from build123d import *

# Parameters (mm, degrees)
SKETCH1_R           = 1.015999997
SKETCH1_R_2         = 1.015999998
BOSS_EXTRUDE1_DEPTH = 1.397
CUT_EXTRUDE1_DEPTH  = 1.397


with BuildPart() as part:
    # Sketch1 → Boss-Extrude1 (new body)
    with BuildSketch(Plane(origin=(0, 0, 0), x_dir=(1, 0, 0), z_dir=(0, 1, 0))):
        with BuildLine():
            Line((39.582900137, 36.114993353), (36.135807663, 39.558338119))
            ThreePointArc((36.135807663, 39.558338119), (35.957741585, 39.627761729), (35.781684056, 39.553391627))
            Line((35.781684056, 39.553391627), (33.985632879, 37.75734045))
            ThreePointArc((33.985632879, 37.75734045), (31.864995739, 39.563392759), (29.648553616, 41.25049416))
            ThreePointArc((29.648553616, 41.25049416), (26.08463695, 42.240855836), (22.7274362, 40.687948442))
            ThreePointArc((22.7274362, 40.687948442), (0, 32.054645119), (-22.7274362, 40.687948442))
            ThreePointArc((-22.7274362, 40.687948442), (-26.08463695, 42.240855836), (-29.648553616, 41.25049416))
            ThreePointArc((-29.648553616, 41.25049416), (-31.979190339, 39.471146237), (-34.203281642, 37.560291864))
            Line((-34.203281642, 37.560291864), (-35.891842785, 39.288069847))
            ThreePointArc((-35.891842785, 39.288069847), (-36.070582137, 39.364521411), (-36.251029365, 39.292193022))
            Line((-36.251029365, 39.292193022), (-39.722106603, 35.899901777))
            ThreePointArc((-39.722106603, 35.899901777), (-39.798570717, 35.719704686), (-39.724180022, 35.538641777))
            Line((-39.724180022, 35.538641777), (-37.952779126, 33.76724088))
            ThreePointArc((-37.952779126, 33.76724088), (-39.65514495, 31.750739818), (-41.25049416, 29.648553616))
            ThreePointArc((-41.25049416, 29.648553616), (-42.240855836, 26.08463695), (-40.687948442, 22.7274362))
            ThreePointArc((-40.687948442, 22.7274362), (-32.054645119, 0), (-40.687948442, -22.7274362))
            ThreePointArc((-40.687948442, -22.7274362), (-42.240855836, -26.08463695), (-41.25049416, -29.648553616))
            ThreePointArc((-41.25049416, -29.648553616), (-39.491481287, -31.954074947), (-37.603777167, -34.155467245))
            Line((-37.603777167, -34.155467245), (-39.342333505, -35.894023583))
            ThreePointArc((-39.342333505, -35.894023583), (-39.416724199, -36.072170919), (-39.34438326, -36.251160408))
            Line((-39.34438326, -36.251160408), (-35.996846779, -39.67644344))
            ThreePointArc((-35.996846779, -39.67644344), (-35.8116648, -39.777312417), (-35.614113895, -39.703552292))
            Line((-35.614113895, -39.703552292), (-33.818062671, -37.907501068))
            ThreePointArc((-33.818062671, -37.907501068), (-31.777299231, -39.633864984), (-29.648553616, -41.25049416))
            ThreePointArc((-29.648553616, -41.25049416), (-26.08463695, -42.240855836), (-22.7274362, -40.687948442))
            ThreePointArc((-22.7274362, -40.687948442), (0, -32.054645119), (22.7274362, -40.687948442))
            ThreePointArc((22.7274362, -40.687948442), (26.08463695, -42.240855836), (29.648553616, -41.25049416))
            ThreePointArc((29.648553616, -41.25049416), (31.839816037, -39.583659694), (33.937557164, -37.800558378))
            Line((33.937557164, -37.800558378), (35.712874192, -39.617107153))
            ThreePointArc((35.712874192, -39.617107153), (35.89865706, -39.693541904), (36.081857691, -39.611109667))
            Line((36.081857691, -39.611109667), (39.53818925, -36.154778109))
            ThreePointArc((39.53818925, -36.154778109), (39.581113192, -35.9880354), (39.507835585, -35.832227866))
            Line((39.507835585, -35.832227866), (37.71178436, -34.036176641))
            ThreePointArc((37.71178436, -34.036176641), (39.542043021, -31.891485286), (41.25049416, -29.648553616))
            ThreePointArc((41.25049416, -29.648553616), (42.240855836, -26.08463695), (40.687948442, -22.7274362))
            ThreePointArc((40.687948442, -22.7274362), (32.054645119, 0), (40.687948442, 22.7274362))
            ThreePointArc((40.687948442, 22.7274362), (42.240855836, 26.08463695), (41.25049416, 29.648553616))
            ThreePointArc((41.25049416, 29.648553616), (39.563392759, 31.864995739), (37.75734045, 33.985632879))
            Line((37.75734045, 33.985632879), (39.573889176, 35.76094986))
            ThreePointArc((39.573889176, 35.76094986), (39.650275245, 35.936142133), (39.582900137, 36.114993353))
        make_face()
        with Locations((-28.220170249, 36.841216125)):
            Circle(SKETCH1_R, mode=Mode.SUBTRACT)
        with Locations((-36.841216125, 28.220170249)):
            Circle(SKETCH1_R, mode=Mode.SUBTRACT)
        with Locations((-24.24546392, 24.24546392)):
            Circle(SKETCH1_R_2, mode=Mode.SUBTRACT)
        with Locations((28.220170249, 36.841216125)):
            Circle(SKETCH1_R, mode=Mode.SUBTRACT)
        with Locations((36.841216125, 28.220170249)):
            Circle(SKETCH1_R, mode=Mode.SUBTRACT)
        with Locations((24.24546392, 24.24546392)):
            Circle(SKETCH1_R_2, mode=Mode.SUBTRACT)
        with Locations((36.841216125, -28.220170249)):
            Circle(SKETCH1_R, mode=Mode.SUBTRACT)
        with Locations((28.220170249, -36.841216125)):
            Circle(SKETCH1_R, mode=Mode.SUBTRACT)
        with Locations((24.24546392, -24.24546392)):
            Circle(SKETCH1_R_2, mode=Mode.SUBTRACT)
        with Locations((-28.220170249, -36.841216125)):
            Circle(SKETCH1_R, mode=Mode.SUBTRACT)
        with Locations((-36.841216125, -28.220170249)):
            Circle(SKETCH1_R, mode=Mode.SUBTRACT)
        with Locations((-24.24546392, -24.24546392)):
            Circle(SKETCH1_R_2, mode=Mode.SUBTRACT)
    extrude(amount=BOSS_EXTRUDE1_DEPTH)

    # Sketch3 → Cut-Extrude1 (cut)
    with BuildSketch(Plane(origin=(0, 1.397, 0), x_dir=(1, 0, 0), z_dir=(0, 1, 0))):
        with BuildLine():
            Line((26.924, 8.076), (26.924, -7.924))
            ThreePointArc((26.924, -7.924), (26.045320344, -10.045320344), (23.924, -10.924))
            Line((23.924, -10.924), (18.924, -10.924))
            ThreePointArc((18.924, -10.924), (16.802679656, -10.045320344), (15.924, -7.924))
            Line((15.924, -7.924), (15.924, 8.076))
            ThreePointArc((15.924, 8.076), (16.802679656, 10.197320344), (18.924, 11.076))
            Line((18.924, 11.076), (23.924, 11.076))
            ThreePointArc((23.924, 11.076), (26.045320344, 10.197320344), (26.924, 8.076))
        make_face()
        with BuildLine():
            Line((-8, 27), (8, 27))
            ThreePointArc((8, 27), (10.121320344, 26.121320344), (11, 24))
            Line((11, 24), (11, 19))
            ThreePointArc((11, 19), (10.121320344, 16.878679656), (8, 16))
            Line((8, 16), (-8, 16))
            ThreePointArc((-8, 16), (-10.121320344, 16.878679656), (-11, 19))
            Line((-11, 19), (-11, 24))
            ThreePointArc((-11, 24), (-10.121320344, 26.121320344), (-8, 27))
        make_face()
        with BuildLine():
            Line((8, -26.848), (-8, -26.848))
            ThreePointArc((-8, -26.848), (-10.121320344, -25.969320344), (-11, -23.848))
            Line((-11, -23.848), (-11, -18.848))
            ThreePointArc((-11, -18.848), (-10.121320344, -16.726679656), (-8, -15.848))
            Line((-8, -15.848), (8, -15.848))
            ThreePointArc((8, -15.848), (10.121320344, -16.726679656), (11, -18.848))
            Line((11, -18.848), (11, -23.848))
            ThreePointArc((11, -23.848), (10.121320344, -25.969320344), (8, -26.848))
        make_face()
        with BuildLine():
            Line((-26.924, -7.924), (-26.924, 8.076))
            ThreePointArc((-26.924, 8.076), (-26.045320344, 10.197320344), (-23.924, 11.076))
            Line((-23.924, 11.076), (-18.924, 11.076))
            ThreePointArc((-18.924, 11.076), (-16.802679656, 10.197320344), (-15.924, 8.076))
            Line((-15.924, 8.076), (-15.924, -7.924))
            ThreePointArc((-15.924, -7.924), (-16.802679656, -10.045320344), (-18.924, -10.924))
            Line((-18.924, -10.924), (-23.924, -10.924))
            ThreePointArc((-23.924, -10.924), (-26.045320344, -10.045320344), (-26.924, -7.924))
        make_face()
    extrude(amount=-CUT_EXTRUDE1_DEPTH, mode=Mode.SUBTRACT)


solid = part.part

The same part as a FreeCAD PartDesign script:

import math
import FreeCAD as App
import Part
import Sketcher

V = App.Vector
Q = App.Units.Quantity

doc = App.newDocument("Part")
body = doc.addObject("PartDesign::Body", "Body")

# Sketch on XZ plane
sketch1 = body.newObject("Sketcher::SketchObject", "Sketch")
sketch1.AttachmentSupport = (doc.getObject("XZ_Plane"), [""])
sketch1.MapMode = "FlatFace"
sketch1.addGeometry(Part.LineSegment(V(39.58, -36.11, 0), V(36.14, -39.56, 0)), False)
sketch1.addGeometry(Part.ArcOfCircle(Part.Circle(V(35.96, -39.37, 0), V(0, 0, 1), 0.25), math.radians(-135), math.radians(-47)), False)
sketch1.addGeometry(Part.LineSegment(V(35.78, -39.55, 0), V(33.99, -37.76, 0)), False)
sketch1.addGeometry(Part.ArcOfCircle(Part.Circle(V(0, 0, 0), V(0, 0, 1), 50.8), math.radians(-54.29), math.radians(-48.01)), False)
sketch1.addGeometry(Part.ArcOfCircle(Part.Circle(V(26.52, -36.9, 0), V(0, 0, 1), 5.36), math.radians(-135), math.radians(-54)), False)
sketch1.addGeometry(Part.ArcOfCircle(Part.Circle(V(0, -66.29, 0), V(0, 0, 1), 34.23), math.radians(48), math.radians(132)), False)
sketch1.addGeometry(Part.ArcOfCircle(Part.Circle(V(-26.52, -36.9, 0), V(0, 0, 1), 5.36), math.radians(-126), math.radians(-45)), False)
sketch1.addGeometry(Part.ArcOfCircle(Part.Circle(V(0, 0, 0), V(0, 0, 1), 50.8), math.radians(-132.32), math.radians(-125.71)), False)
sketch1.addGeometry(Part.LineSegment(V(-34.2, -37.56, 0), V(-35.89, -39.29, 0)), False)
sketch1.addGeometry(Part.ArcOfCircle(Part.Circle(V(-36.07, -39.11, 0), V(0, 0, 1), 0.25), math.radians(-134), math.radians(-44)), False)
sketch1.addGeometry(Part.LineSegment(V(-36.25, -39.29, 0), V(-39.72, -35.9, 0)), False)
sketch1.addGeometry(Part.ArcOfCircle(Part.Circle(V(-39.54, -35.72, 0), V(0, 0, 1), 0.25), math.radians(135), math.radians(226)), False)
sketch1.addGeometry(Part.LineSegment(V(-39.72, -35.54, 0), V(-37.95, -33.77, 0)), False)
sketch1.addGeometry(Part.ArcOfCircle(Part.Circle(V(0, 0, 0), V(0, 0, 1), 50.8), math.radians(-144.29), math.radians(-138.34)), False)
sketch1.addGeometry(Part.ArcOfCircle(Part.Circle(V(-36.9, -26.52, 0), V(0, 0, 1), 5.36), math.radians(135), math.radians(216)), False)
sketch1.addGeometry(Part.ArcOfCircle(Part.Circle(V(-66.29, 0, 0), V(0, 0, 1), 34.23), math.radians(-42), math.radians(42)), False)
sketch1.addGeometry(Part.ArcOfCircle(Part.Circle(V(-36.9, 26.52, 0), V(0, 0, 1), 5.36), math.radians(144), math.radians(225)), False)
sketch1.addGeometry(Part.ArcOfCircle(Part.Circle(V(0, 0, 0), V(0, 0, 1), 50.8), math.radians(137.75), math.radians(144.29)), False)
sketch1.addGeometry(Part.LineSegment(V(-37.6, 34.16, 0), V(-39.34, 35.89, 0)), False)
sketch1.addGeometry(Part.ArcOfCircle(Part.Circle(V(-39.16, 36.07, 0), V(0, 0, 1), 0.25), math.radians(136), math.radians(225)), False)
sketch1.addGeometry(Part.LineSegment(V(-39.34, 36.25, 0), V(-36, 39.68, 0)), False)
sketch1.addGeometry(Part.ArcOfCircle(Part.Circle(V(-35.79, 39.52, 0), V(0, 0, 1), 0.25), math.radians(45), math.radians(143)), False)
sketch1.addGeometry(Part.LineSegment(V(-35.61, 39.7, 0), V(-33.82, 37.91, 0)), False)
sketch1.addGeometry(Part.ArcOfCircle(Part.Circle(V(0, 0, 0), V(0, 0, 1), 50.8), math.radians(125.71), math.radians(131.74)), False)
sketch1.addGeometry(Part.ArcOfCircle(Part.Circle(V(-26.52, 36.9, 0), V(0, 0, 1), 5.36), math.radians(45), math.radians(126)), False)
sketch1.addGeometry(Part.ArcOfCircle(Part.Circle(V(0, 66.29, 0), V(0, 0, 1), 34.23), math.radians(-132), math.radians(-48)), False)
sketch1.addGeometry(Part.ArcOfCircle(Part.Circle(V(26.52, 36.9, 0), V(0, 0, 1), 5.36), math.radians(54), math.radians(135)), False)
sketch1.addGeometry(Part.ArcOfCircle(Part.Circle(V(0, 0, 0), V(0, 0, 1), 50.8), math.radians(48.08), math.radians(54.29)), False)
sketch1.addGeometry(Part.LineSegment(V(33.94, 37.8, 0), V(35.71, 39.62, 0)), False)
sketch1.addGeometry(Part.ArcOfCircle(Part.Circle(V(35.89, 39.44, 0), V(0, 0, 1), 0.25), math.radians(42), math.radians(136)), False)
sketch1.addGeometry(Part.LineSegment(V(36.08, 39.61, 0), V(39.54, 36.15, 0)), False)
sketch1.addGeometry(Part.ArcOfCircle(Part.Circle(V(39.33, 36.01, 0), V(0, 0, 1), 0.25), math.radians(-45), math.radians(34)), False)
sketch1.addGeometry(Part.LineSegment(V(39.51, 35.83, 0), V(37.71, 34.04, 0)), False)
sketch1.addGeometry(Part.ArcOfCircle(Part.Circle(V(0, 0, 0), V(0, 0, 1), 50.8), math.radians(35.71), math.radians(42.07)), False)
sketch1.addGeometry(Part.ArcOfCircle(Part.Circle(V(36.9, 26.52, 0), V(0, 0, 1), 5.36), math.radians(-45), math.radians(36)), False)
sketch1.addGeometry(Part.ArcOfCircle(Part.Circle(V(66.29, 0, 0), V(0, 0, 1), 34.23), math.radians(138), math.radians(222)), False)
sketch1.addGeometry(Part.ArcOfCircle(Part.Circle(V(36.9, -26.52, 0), V(0, 0, 1), 5.36), math.radians(-36), math.radians(45)), False)
sketch1.addGeometry(Part.ArcOfCircle(Part.Circle(V(0, 0, 0), V(0, 0, 1), 50.8), math.radians(-41.99), math.radians(-35.71)), False)
sketch1.addGeometry(Part.LineSegment(V(37.76, -33.99, 0), V(39.57, -35.76, 0)), False)
sketch1.addGeometry(Part.ArcOfCircle(Part.Circle(V(39.4, -35.94, 0), V(0, 0, 1), 0.25), math.radians(-43), math.radians(46)), False)
sketch1.addGeometry(Part.Circle(V(-28.22, 36.84, 0), V(0, 0, 1), 1.02), False)
sketch1.addGeometry(Part.Circle(V(-36.84, 28.22, 0), V(0, 0, 1), 1.02), False)
sketch1.addGeometry(Part.Circle(V(-24.25, 24.25, 0), V(0, 0, 1), 1.02), False)
sketch1.addGeometry(Part.Circle(V(28.22, 36.84, 0), V(0, 0, 1), 1.02), False)
sketch1.addGeometry(Part.Circle(V(24.25, 24.25, 0), V(0, 0, 1), 1.02), False)
sketch1.addGeometry(Part.Circle(V(36.84, 28.22, 0), V(0, 0, 1), 1.02), False)
sketch1.addGeometry(Part.Circle(V(-36.84, -28.22, 0), V(0, 0, 1), 1.02), False)
sketch1.addGeometry(Part.Circle(V(-24.25, -24.25, 0), V(0, 0, 1), 1.02), False)
sketch1.addGeometry(Part.Circle(V(-28.22, -36.84, 0), V(0, 0, 1), 1.02), False)
sketch1.addGeometry(Part.Circle(V(24.25, -24.25, 0), V(0, 0, 1), 1.02), False)
sketch1.addGeometry(Part.Circle(V(36.84, -28.22, 0), V(0, 0, 1), 1.02), False)
sketch1.addGeometry(Part.Circle(V(28.22, -36.84, 0), V(0, 0, 1), 1.02), False)
sketch1.addConstraint(Sketcher.Constraint("Coincident", 0, 2, 1, 2))
sketch1.addConstraint(Sketcher.Constraint("Tangent", 1, 1, 2, 1))
sketch1.addConstraint(Sketcher.Constraint("Coincident", 2, 2, 3, 2))
sketch1.addConstraint(Sketcher.Constraint("Tangent", 3, 1, 4, 2))
sketch1.addConstraint(Sketcher.Constraint("Coincident", 4, 1, 5, 1))
sketch1.addConstraint(Sketcher.Constraint("Coincident", 5, 2, 6, 2))
sketch1.addConstraint(Sketcher.Constraint("Tangent", 6, 1, 7, 2))
sketch1.addConstraint(Sketcher.Constraint("Coincident", 7, 1, 8, 1))
sketch1.addConstraint(Sketcher.Constraint("Tangent", 8, 2, 9, 2))
sketch1.addConstraint(Sketcher.Constraint("Tangent", 9, 1, 10, 1))
sketch1.addConstraint(Sketcher.Constraint("Tangent", 10, 2, 11, 2))
sketch1.addConstraint(Sketcher.Constraint("Tangent", 11, 1, 12, 1))
sketch1.addConstraint(Sketcher.Constraint("Coincident", 12, 2, 13, 2))
sketch1.addConstraint(Sketcher.Constraint("Tangent", 13, 1, 14, 2))
sketch1.addConstraint(Sketcher.Constraint("Coincident", 14, 1, 15, 1))
sketch1.addConstraint(Sketcher.Constraint("Coincident", 15, 2, 16, 2))
sketch1.addConstraint(Sketcher.Constraint("Tangent", 16, 1, 17, 2))
sketch1.addConstraint(Sketcher.Constraint("Coincident", 17, 1, 18, 1))
sketch1.addConstraint(Sketcher.Constraint("Tangent", 18, 2, 19, 2))
sketch1.addConstraint(Sketcher.Constraint("Tangent", 19, 1, 20, 1))
sketch1.addConstraint(Sketcher.Constraint("Coincident", 20, 2, 21, 2))
sketch1.addConstraint(Sketcher.Constraint("Tangent", 21, 1, 22, 1))
sketch1.addConstraint(Sketcher.Constraint("Coincident", 22, 2, 23, 2))
sketch1.addConstraint(Sketcher.Constraint("Tangent", 23, 1, 24, 2))
sketch1.addConstraint(Sketcher.Constraint("Coincident", 24, 1, 25, 1))
sketch1.addConstraint(Sketcher.Constraint("Coincident", 25, 2, 26, 2))
sketch1.addConstraint(Sketcher.Constraint("Tangent", 26, 1, 27, 2))
sketch1.addConstraint(Sketcher.Constraint("Coincident", 27, 1, 28, 1))
sketch1.addConstraint(Sketcher.Constraint("Tangent", 28, 2, 29, 2))
sketch1.addConstraint(Sketcher.Constraint("Coincident", 29, 1, 30, 1))
sketch1.addConstraint(Sketcher.Constraint("Coincident", 30, 2, 31, 2))
sketch1.addConstraint(Sketcher.Constraint("Tangent", 31, 1, 32, 1))
sketch1.addConstraint(Sketcher.Constraint("Coincident", 32, 2, 33, 2))
sketch1.addConstraint(Sketcher.Constraint("Tangent", 33, 1, 34, 2))
sketch1.addConstraint(Sketcher.Constraint("Coincident", 34, 1, 35, 1))
sketch1.addConstraint(Sketcher.Constraint("Coincident", 35, 2, 36, 2))
sketch1.addConstraint(Sketcher.Constraint("Tangent", 36, 1, 37, 2))
sketch1.addConstraint(Sketcher.Constraint("Coincident", 37, 1, 38, 1))
sketch1.addConstraint(Sketcher.Constraint("Tangent", 38, 2, 39, 2))
sketch1.addConstraint(Sketcher.Constraint("Coincident", 39, 1, 0, 1))
sketch1.addConstraint(Sketcher.Constraint("Coincident", 3, 3, -1, 1))
sketch1.addConstraint(Sketcher.Constraint("Coincident", 7, 3, -1, 1))
sketch1.addConstraint(Sketcher.Constraint("Coincident", 13, 3, -1, 1))
sketch1.addConstraint(Sketcher.Constraint("Coincident", 17, 3, -1, 1))
sketch1.addConstraint(Sketcher.Constraint("Coincident", 23, 3, -1, 1))
sketch1.addConstraint(Sketcher.Constraint("Coincident", 27, 3, -1, 1))
sketch1.addConstraint(Sketcher.Constraint("Coincident", 33, 3, -1, 1))
sketch1.addConstraint(Sketcher.Constraint("Coincident", 37, 3, -1, 1))
sketch1.addConstraint(Sketcher.Constraint("Equal", 4, 6))
sketch1.addConstraint(Sketcher.Constraint("Equal", 3, 7))
sketch1.addConstraint(Sketcher.Constraint("Equal", 1, 9))
sketch1.addConstraint(Sketcher.Constraint("Equal", 9, 11))
sketch1.addConstraint(Sketcher.Constraint("Equal", 7, 13))
sketch1.addConstraint(Sketcher.Constraint("Equal", 6, 14))
sketch1.addConstraint(Sketcher.Constraint("Equal", 5, 15))
sketch1.addConstraint(Sketcher.Constraint("Equal", 14, 16))
sketch1.addConstraint(Sketcher.Constraint("Equal", 13, 17))
sketch1.addConstraint(Sketcher.Constraint("Equal", 11, 19))
sketch1.addConstraint(Sketcher.Constraint("Equal", 19, 21))
sketch1.addConstraint(Sketcher.Constraint("Equal", 17, 23))
sketch1.addConstraint(Sketcher.Constraint("Equal", 16, 24))
sketch1.addConstraint(Sketcher.Constraint("Equal", 15, 25))
sketch1.addConstraint(Sketcher.Constraint("Equal", 24, 26))
sketch1.addConstraint(Sketcher.Constraint("Equal", 23, 27))
sketch1.addConstraint(Sketcher.Constraint("Equal", 21, 29))
sketch1.addConstraint(Sketcher.Constraint("Equal", 29, 31))
sketch1.addConstraint(Sketcher.Constraint("Equal", 27, 33))
sketch1.addConstraint(Sketcher.Constraint("Equal", 26, 34))
sketch1.addConstraint(Sketcher.Constraint("Equal", 25, 35))
sketch1.addConstraint(Sketcher.Constraint("Equal", 34, 36))
sketch1.addConstraint(Sketcher.Constraint("Equal", 33, 37))
sketch1.addConstraint(Sketcher.Constraint("Equal", 31, 39))
sketch1.addConstraint(Sketcher.Constraint("Equal", 40, 41))
sketch1.addConstraint(Sketcher.Constraint("Equal", 41, 42))
sketch1.addConstraint(Sketcher.Constraint("Equal", 42, 43))
sketch1.addConstraint(Sketcher.Constraint("Equal", 43, 44))
sketch1.addConstraint(Sketcher.Constraint("Equal", 44, 45))
sketch1.addConstraint(Sketcher.Constraint("Equal", 45, 46))
sketch1.addConstraint(Sketcher.Constraint("Equal", 46, 47))
sketch1.addConstraint(Sketcher.Constraint("Equal", 47, 48))
sketch1.addConstraint(Sketcher.Constraint("Equal", 48, 49))
sketch1.addConstraint(Sketcher.Constraint("Equal", 49, 50))
sketch1.addConstraint(Sketcher.Constraint("Equal", 50, 51))
sketch1.addConstraint(Sketcher.Constraint("Symmetric", 5, 3, 25, 3, -1, 1))
sketch1.addConstraint(Sketcher.Constraint("Symmetric", 15, 3, 35, 3, -1, 1))
sketch1.addConstraint(Sketcher.Constraint("Symmetric", 45, 3, 46, 3, -1, 1))
sketch1.addConstraint(Sketcher.Constraint("Symmetric", 44, 3, 47, 3, -1, 1))
sketch1.addConstraint(Sketcher.Constraint("Symmetric", 43, 3, 48, 3, -1, 1))
sketch1.addConstraint(Sketcher.Constraint("Symmetric", 42, 3, 49, 3, -1, 1))
sketch1.addConstraint(Sketcher.Constraint("Symmetric", 41, 3, 50, 3, -1, 1))
sketch1.addConstraint(Sketcher.Constraint("Symmetric", 40, 3, 51, 3, -1, 1))
sketch1.addConstraint(Sketcher.Constraint("Symmetric", 40, 3, 43, 3, -2))
sketch1.addConstraint(Sketcher.Constraint("Symmetric", 42, 3, 44, 3, -2))
sketch1.addConstraint(Sketcher.Constraint("Symmetric", 41, 3, 45, 3, -2))
sketch1.addConstraint(Sketcher.Constraint("Symmetric", 4, 1, 5, 2, -2))
sketch1.addConstraint(Sketcher.Constraint("Symmetric", 15, 2, 34, 1, -2))
sketch1.addConstraint(Sketcher.Constraint("Perpendicular", 8, 10))
sketch1.addConstraint(Sketcher.Constraint("Perpendicular", 2, 12))
sketch1.addConstraint(Sketcher.Constraint("Perpendicular", 12, 18))
sketch1.addConstraint(Sketcher.Constraint("Perpendicular", 10, 20))
sketch1.addConstraint(Sketcher.Constraint("Parallel", 18, 22))
sketch1.addConstraint(Sketcher.Constraint("Parallel", 20, 28))
sketch1.addConstraint(Sketcher.Constraint("Parallel", 22, 30))
sketch1.addConstraint(Sketcher.Constraint("Perpendicular", 30, 32))
sketch1.addConstraint(Sketcher.Constraint("Perpendicular", 28, 38))
sketch1.addConstraint(Sketcher.Constraint("Horizontal", 24, 3, 26, 3))
sketch1.addConstraint(Sketcher.Constraint("Horizontal", 14, 3, 36, 3))
sketch1.addConstraint(Sketcher.Constraint("Vertical", 14, 3, 16, 3))
sketch1.addConstraint(Sketcher.Constraint("Vertical", 6, 3, 24, 3))
sketch1.addConstraint(Sketcher.Constraint("Equal", 2, 22))
sketch1.addConstraint(Sketcher.Constraint("Equal", 22, 28))
sketch1.addConstraint(Sketcher.Constraint("Equal", 28, 32))
sketch1.addConstraint(Sketcher.Constraint("Equal", 32, 38))
sketch1.addConstraint(Sketcher.Constraint("Radius", 3, Q("2 in")))
sketch1.addConstraint(Sketcher.Constraint("Diameter", 40, Q("0.08 in")))
sketch1.addConstraint(Sketcher.Constraint("Radius", 1, Q("0.01 in")))
sketch1.addConstraint(Sketcher.Constraint("Angle", 2, Q("135 deg")))
sketch1.addConstraint(Sketcher.Constraint("Distance", 2, Q("0.1 in")))
sketch1.addConstraint(Sketcher.Constraint("Radius", 5, 34.231989))
sketch1.addConstraint(Sketcher.Constraint("Radius", 4, 5.362132))
sketch1.addConstraint(Sketcher.Constraint("DistanceY", 10, 2, -1, 1, 35.899902))
sketch1.addConstraint(Sketcher.Constraint("DistanceY", -1, 1, 22, 2, 37.907501))
sketch1.addConstraint(Sketcher.Constraint("DistanceX", -1, 1, 39, 1, 39.5829))
sketch1.addConstraint(Sketcher.Constraint("Distance", 12, 2.505139))
sketch1.addConstraint(Sketcher.Constraint("Distance", 18, 2.45869))
sketch1.addConstraint(Sketcher.Constraint("Distance", 30, 4.887991))
sketch1.addConstraint(Sketcher.Constraint("DistanceX", -1, 1, 1, 3, 35.961289))
sketch1.addConstraint(Sketcher.Constraint("DistanceY", 4, 3, -1, 1, 36.896348))
sketch1.addConstraint(Sketcher.Constraint("DistanceY", 9, 3, -1, 1, 39.110538))
sketch1.addConstraint(Sketcher.Constraint("DistanceX", 14, 3, -1, 1, 36.896348))
sketch1.addConstraint(Sketcher.Constraint("DistanceX", 19, 3, -1, 1, 39.162728))
sketch1.addConstraint(Sketcher.Constraint("DistanceX", -1, 1, 29, 3, 35.894529))
sketch1.addConstraint(Sketcher.Constraint("DistanceX", -1, 1, 31, 3, 39.32823))
sketch1.addConstraint(Sketcher.Constraint("DistanceX", 40, 3, -1, 1, 28.22017))
sketch1.addConstraint(Sketcher.Constraint("DistanceY", -1, 1, 41, 3, 28.22017))
sketch1.addConstraint(Sketcher.Constraint("DistanceY", 0, 2, -1, 1, 39.558338))
sketch1.addConstraint(Sketcher.Constraint("DistanceY", 4, 1, -1, 1, 40.687948))
sketch1.addConstraint(Sketcher.Constraint("DistanceX", 9, 1, -1, 1, 36.251029))
sketch1.addConstraint(Sketcher.Constraint("DistanceX", 14, 1, -1, 1, 40.687948))
sketch1.addConstraint(Sketcher.Constraint("DistanceX", -1, 1, 37, 1, 37.75734))
sketch1.addConstraint(Sketcher.Constraint("DistanceY", -1, 1, 40, 3, 36.841216))
sketch1.addConstraint(Sketcher.Constraint("DistanceX", 41, 3, -1, 1, 36.841216))
sketch1.addConstraint(Sketcher.Constraint("DistanceX", 42, 3, -1, 1, 24.245464))
sketch1.addConstraint(Sketcher.Constraint("DistanceY", -1, 1, 42, 3, 24.245464))
pad1 = body.newObject("PartDesign::Pad", "Pad")
pad1.Profile = sketch1
pad1.Length = Q("0.055 in")
pad1.Reversed = True

# Sketch on XZ plane
sketch2 = body.newObject("Sketcher::SketchObject", "Sketch001")
sketch2.AttachmentSupport = (doc.getObject("XZ_Plane"), [""])
sketch2.MapMode = "FlatFace"
sketch2.AttachmentOffset = App.Placement(V(0, 0, -0.055 * 25.4), App.Rotation())
sketch2.addGeometry(Part.LineSegment(V(26.9, 7.9, 0), V(26.9, -8.1, 0)), False)
sketch2.addGeometry(Part.ArcOfCircle(Part.Circle(V(23.9, -8.1, 0), V(0, 0, 1), 3), math.radians(-90), math.radians(0)), False)
sketch2.addGeometry(Part.LineSegment(V(23.9, -11.1, 0), V(18.9, -11.1, 0)), False)
sketch2.addGeometry(Part.ArcOfCircle(Part.Circle(V(18.9, -8.1, 0), V(0, 0, 1), 3), math.radians(180), math.radians(270)), False)
sketch2.addGeometry(Part.LineSegment(V(15.9, -8.1, 0), V(15.9, 7.9, 0)), False)
sketch2.addGeometry(Part.ArcOfCircle(Part.Circle(V(18.9, 7.9, 0), V(0, 0, 1), 3), math.radians(90), math.radians(180)), False)
sketch2.addGeometry(Part.LineSegment(V(18.9, 10.9, 0), V(23.9, 10.9, 0)), False)
sketch2.addGeometry(Part.ArcOfCircle(Part.Circle(V(23.9, 7.9, 0), V(0, 0, 1), 3), math.radians(0), math.radians(90)), False)
sketch2.addGeometry(Part.LineSegment(V(8, -27, 0), V(-8, -27, 0)), False)
sketch2.addGeometry(Part.ArcOfCircle(Part.Circle(V(-8, -24, 0), V(0, 0, 1), 3), math.radians(180), math.radians(270)), False)
sketch2.addGeometry(Part.LineSegment(V(-11, -24, 0), V(-11, -19, 0)), False)
sketch2.addGeometry(Part.ArcOfCircle(Part.Circle(V(-8, -19, 0), V(0, 0, 1), 3), math.radians(90), math.radians(180)), False)
sketch2.addGeometry(Part.LineSegment(V(-8, -16, 0), V(8, -16, 0)), False)
sketch2.addGeometry(Part.ArcOfCircle(Part.Circle(V(8, -19, 0), V(0, 0, 1), 3), math.radians(0), math.radians(90)), False)
sketch2.addGeometry(Part.LineSegment(V(11, -19, 0), V(11, -24, 0)), False)
sketch2.addGeometry(Part.ArcOfCircle(Part.Circle(V(8, -24, 0), V(0, 0, 1), 3), math.radians(-90), math.radians(0)), False)
sketch2.addGeometry(Part.LineSegment(V(-8, 26.8, 0), V(8, 26.8, 0)), False)
sketch2.addGeometry(Part.ArcOfCircle(Part.Circle(V(8, 23.8, 0), V(0, 0, 1), 3), math.radians(0), math.radians(90)), False)
sketch2.addGeometry(Part.LineSegment(V(11, 23.8, 0), V(11, 18.8, 0)), False)
sketch2.addGeometry(Part.ArcOfCircle(Part.Circle(V(8, 18.8, 0), V(0, 0, 1), 3), math.radians(-90), math.radians(0)), False)
sketch2.addGeometry(Part.LineSegment(V(8, 15.8, 0), V(-8, 15.8, 0)), False)
sketch2.addGeometry(Part.ArcOfCircle(Part.Circle(V(-8, 18.8, 0), V(0, 0, 1), 3), math.radians(180), math.radians(270)), False)
sketch2.addGeometry(Part.LineSegment(V(-11, 18.8, 0), V(-11, 23.8, 0)), False)
sketch2.addGeometry(Part.ArcOfCircle(Part.Circle(V(-8, 23.8, 0), V(0, 0, 1), 3), math.radians(90), math.radians(180)), False)
sketch2.addGeometry(Part.LineSegment(V(-26.9, -8.1, 0), V(-26.9, 7.9, 0)), False)
sketch2.addGeometry(Part.ArcOfCircle(Part.Circle(V(-23.9, 7.9, 0), V(0, 0, 1), 3), math.radians(90), math.radians(180)), False)
sketch2.addGeometry(Part.LineSegment(V(-23.9, 10.9, 0), V(-18.9, 10.9, 0)), False)
sketch2.addGeometry(Part.ArcOfCircle(Part.Circle(V(-18.9, 7.9, 0), V(0, 0, 1), 3), math.radians(0), math.radians(90)), False)
sketch2.addGeometry(Part.LineSegment(V(-15.9, 7.9, 0), V(-15.9, -8.1, 0)), False)
sketch2.addGeometry(Part.ArcOfCircle(Part.Circle(V(-18.9, -8.1, 0), V(0, 0, 1), 3), math.radians(-90), math.radians(0)), False)
sketch2.addGeometry(Part.LineSegment(V(-18.9, -11.1, 0), V(-23.9, -11.1, 0)), False)
sketch2.addGeometry(Part.ArcOfCircle(Part.Circle(V(-23.9, -8.1, 0), V(0, 0, 1), 3), math.radians(180), math.radians(270)), False)
sketch2.addConstraint(Sketcher.Constraint("Tangent", 0, 2, 1, 2))
sketch2.addConstraint(Sketcher.Constraint("Tangent", 1, 1, 2, 1))
sketch2.addConstraint(Sketcher.Constraint("Tangent", 2, 2, 3, 2))
sketch2.addConstraint(Sketcher.Constraint("Tangent", 3, 1, 4, 1))
sketch2.addConstraint(Sketcher.Constraint("Tangent", 4, 2, 5, 2))
sketch2.addConstraint(Sketcher.Constraint("Tangent", 5, 1, 6, 1))
sketch2.addConstraint(Sketcher.Constraint("Tangent", 6, 2, 7, 2))
sketch2.addConstraint(Sketcher.Constraint("Tangent", 7, 1, 0, 1))
sketch2.addConstraint(Sketcher.Constraint("Tangent", 8, 2, 9, 2))
sketch2.addConstraint(Sketcher.Constraint("Tangent", 9, 1, 10, 1))
sketch2.addConstraint(Sketcher.Constraint("Tangent", 10, 2, 11, 2))
sketch2.addConstraint(Sketcher.Constraint("Tangent", 11, 1, 12, 1))
sketch2.addConstraint(Sketcher.Constraint("Tangent", 12, 2, 13, 2))
sketch2.addConstraint(Sketcher.Constraint("Tangent", 13, 1, 14, 1))
sketch2.addConstraint(Sketcher.Constraint("Tangent", 14, 2, 15, 2))
sketch2.addConstraint(Sketcher.Constraint("Tangent", 15, 1, 8, 1))
sketch2.addConstraint(Sketcher.Constraint("Tangent", 16, 2, 17, 2))
sketch2.addConstraint(Sketcher.Constraint("Tangent", 17, 1, 18, 1))
sketch2.addConstraint(Sketcher.Constraint("Tangent", 18, 2, 19, 2))
sketch2.addConstraint(Sketcher.Constraint("Tangent", 19, 1, 20, 1))
sketch2.addConstraint(Sketcher.Constraint("Tangent", 20, 2, 21, 2))
sketch2.addConstraint(Sketcher.Constraint("Tangent", 21, 1, 22, 1))
sketch2.addConstraint(Sketcher.Constraint("Tangent", 22, 2, 23, 2))
sketch2.addConstraint(Sketcher.Constraint("Tangent", 23, 1, 16, 1))
sketch2.addConstraint(Sketcher.Constraint("Tangent", 24, 2, 25, 2))
sketch2.addConstraint(Sketcher.Constraint("Tangent", 25, 1, 26, 1))
sketch2.addConstraint(Sketcher.Constraint("Tangent", 26, 2, 27, 2))
sketch2.addConstraint(Sketcher.Constraint("Tangent", 27, 1, 28, 1))
sketch2.addConstraint(Sketcher.Constraint("Tangent", 28, 2, 29, 2))
sketch2.addConstraint(Sketcher.Constraint("Tangent", 29, 1, 30, 1))
sketch2.addConstraint(Sketcher.Constraint("Tangent", 30, 2, 31, 2))
sketch2.addConstraint(Sketcher.Constraint("Tangent", 31, 1, 24, 1))
sketch2.addConstraint(Sketcher.Constraint("Vertical", 0))
sketch2.addConstraint(Sketcher.Constraint("Horizontal", 2))
sketch2.addConstraint(Sketcher.Constraint("Vertical", 4))
sketch2.addConstraint(Sketcher.Constraint("Horizontal", 6))
sketch2.addConstraint(Sketcher.Constraint("Horizontal", 8))
sketch2.addConstraint(Sketcher.Constraint("Vertical", 10))
sketch2.addConstraint(Sketcher.Constraint("Horizontal", 12))
sketch2.addConstraint(Sketcher.Constraint("Vertical", 14))
sketch2.addConstraint(Sketcher.Constraint("Horizontal", 16))
sketch2.addConstraint(Sketcher.Constraint("Vertical", 18))
sketch2.addConstraint(Sketcher.Constraint("Horizontal", 20))
sketch2.addConstraint(Sketcher.Constraint("Vertical", 22))
sketch2.addConstraint(Sketcher.Constraint("Vertical", 24))
sketch2.addConstraint(Sketcher.Constraint("Horizontal", 26))
sketch2.addConstraint(Sketcher.Constraint("Vertical", 28))
sketch2.addConstraint(Sketcher.Constraint("Horizontal", 30))
sketch2.addConstraint(Sketcher.Constraint("Equal", 1, 3))
sketch2.addConstraint(Sketcher.Constraint("Equal", 3, 5))
sketch2.addConstraint(Sketcher.Constraint("Equal", 5, 7))
sketch2.addConstraint(Sketcher.Constraint("Equal", 7, 9))
sketch2.addConstraint(Sketcher.Constraint("Equal", 9, 11))
sketch2.addConstraint(Sketcher.Constraint("Equal", 11, 13))
sketch2.addConstraint(Sketcher.Constraint("Equal", 13, 15))
sketch2.addConstraint(Sketcher.Constraint("Equal", 15, 17))
sketch2.addConstraint(Sketcher.Constraint("Equal", 17, 19))
sketch2.addConstraint(Sketcher.Constraint("Equal", 19, 21))
sketch2.addConstraint(Sketcher.Constraint("Equal", 21, 23))
sketch2.addConstraint(Sketcher.Constraint("Equal", 23, 25))
sketch2.addConstraint(Sketcher.Constraint("Equal", 25, 27))
sketch2.addConstraint(Sketcher.Constraint("Equal", 27, 29))
sketch2.addConstraint(Sketcher.Constraint("Equal", 29, 31))
sketch2.addConstraint(Sketcher.Constraint("Symmetric", 7, 3, 25, 3, -2))
sketch2.addConstraint(Sketcher.Constraint("Symmetric", 3, 3, 29, 3, -2))
sketch2.addConstraint(Sketcher.Constraint("Vertical", 15, 3, 17, 3))
sketch2.addConstraint(Sketcher.Constraint("Vertical", 11, 3, 21, 3))
sketch2.addConstraint(Sketcher.Constraint("Equal", 20, 0))
sketch2.addConstraint(Sketcher.Constraint("Equal", 30, 10))
sketch2.addConstraint(Sketcher.Constraint("Equal", 14, 18))
sketch2.addConstraint(Sketcher.Constraint("DistanceX", -1, 1, 0, 2, Q("1.06 in")))
sketch2.addConstraint(Sketcher.Constraint("Radius", 1, 3.0))
sketch2.addConstraint(Sketcher.Constraint("DistanceX", 9, 3, 3, 3, Q("1.06 in")))
sketch2.addConstraint(Sketcher.Constraint("DistanceY", 11, 3, 5, 3, Q("1.06 in")))
sketch2.addConstraint(Sketcher.Constraint("DistanceY", 3, 3, 19, 3, Q("1.06 in")))
sketch2.addConstraint(Sketcher.Constraint("DistanceX", 27, 3, 19, 3, Q("1.06 in")))
sketch2.addConstraint(Sketcher.Constraint("DistanceX", 2, 2, 2, 1, 5.0))
sketch2.addConstraint(Sketcher.Constraint("DistanceY", 1, 3, -1, 1, 8.076))
pocket1 = body.newObject("PartDesign::Pocket", "Pocket")
pocket1.Profile = sketch2
pocket1.Length = Q("0.055 in")
pocket1.Reversed = True

doc.recompute()
